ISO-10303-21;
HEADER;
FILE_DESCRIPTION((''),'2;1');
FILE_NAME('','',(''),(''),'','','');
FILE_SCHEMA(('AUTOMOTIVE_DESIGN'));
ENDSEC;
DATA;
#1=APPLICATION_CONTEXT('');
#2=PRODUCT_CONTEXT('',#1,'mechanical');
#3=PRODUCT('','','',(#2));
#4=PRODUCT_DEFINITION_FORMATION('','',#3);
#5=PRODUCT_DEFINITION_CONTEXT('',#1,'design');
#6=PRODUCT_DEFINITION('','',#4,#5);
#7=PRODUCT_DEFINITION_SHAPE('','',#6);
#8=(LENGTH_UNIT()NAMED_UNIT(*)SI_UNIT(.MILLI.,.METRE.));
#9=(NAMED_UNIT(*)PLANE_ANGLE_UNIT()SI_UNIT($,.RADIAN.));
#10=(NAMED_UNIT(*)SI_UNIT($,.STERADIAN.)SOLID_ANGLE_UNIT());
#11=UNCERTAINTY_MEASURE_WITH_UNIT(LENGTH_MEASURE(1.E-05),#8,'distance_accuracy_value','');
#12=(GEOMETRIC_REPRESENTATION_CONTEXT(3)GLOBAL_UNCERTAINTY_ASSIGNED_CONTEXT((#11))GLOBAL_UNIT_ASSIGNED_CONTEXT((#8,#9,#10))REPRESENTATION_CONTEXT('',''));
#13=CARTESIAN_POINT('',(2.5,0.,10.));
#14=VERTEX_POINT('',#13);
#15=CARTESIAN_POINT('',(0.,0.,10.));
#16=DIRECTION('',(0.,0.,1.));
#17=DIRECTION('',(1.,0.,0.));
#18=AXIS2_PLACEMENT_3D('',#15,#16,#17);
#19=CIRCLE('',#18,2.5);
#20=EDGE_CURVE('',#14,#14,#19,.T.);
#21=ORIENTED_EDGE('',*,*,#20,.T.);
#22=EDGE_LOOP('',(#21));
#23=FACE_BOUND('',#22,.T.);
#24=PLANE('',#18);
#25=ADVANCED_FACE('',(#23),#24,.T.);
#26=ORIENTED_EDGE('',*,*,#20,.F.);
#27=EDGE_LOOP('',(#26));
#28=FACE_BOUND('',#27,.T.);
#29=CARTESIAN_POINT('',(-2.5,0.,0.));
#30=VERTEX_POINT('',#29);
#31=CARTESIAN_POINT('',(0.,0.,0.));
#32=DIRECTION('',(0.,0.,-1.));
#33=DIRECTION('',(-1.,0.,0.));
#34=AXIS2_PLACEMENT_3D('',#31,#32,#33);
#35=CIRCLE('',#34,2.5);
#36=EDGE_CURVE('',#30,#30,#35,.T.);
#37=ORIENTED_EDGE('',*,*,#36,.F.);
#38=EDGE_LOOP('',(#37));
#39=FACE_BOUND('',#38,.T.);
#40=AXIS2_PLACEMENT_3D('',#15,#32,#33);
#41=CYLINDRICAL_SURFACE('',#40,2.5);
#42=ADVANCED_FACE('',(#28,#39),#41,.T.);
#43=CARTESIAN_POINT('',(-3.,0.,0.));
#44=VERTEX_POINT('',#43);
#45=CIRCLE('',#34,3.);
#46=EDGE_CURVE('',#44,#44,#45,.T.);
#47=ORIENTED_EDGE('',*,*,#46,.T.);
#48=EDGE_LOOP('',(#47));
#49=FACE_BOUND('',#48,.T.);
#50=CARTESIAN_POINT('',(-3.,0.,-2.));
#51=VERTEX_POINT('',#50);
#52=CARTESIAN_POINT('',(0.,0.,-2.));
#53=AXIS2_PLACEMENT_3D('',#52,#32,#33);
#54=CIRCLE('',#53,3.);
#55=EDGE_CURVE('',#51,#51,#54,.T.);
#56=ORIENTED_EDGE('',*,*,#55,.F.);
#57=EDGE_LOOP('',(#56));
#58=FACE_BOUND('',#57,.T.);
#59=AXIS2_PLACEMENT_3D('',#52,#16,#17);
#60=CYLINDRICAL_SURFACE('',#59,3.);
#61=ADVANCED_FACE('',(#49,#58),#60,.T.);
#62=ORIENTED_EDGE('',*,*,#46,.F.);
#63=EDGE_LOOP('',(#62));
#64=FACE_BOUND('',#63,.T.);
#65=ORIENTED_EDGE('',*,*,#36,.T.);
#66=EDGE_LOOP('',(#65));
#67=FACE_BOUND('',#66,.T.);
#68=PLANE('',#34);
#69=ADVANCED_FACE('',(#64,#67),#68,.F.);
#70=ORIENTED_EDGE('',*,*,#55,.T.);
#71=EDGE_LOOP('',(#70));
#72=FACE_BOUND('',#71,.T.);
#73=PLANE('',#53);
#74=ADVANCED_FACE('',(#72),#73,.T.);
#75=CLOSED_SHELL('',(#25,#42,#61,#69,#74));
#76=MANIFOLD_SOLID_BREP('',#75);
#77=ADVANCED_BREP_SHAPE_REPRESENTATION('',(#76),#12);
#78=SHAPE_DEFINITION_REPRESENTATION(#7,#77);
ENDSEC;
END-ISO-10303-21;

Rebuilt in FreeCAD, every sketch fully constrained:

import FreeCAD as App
import Part
import Sketcher
Q = App.Units.Quantity

doc = App.newDocument("Part")
params = doc.addObject("Spreadsheet::Sheet", "Params")
for row, (alias, value) in enumerate([
    ("sketch1_diameter", "5 mm"),
    ("pad1_length", "10 mm"),
    ("sketch2_diameter", "6 mm"),
    ("pad2_length", "2 mm"),
], start=1):
    params.set(f"A{row}", alias)
    params.set(f"B{row}", "=" + value)
    params.setAlias(f"B{row}", alias)

body = doc.addObject("PartDesign::Body", "Body")

# Sketch on XY plane
sketch1 = body.newObject("Sketcher::SketchObject", "Sketch")
sketch1.AttachmentSupport = (doc.getObject("XY_Plane"), [""])
sketch1.MapMode = "FlatFace"
sketch1.addGeometry(Part.Circle(App.Vector(0, 0, 0), App.Vector(0, 0, 1), 2.5), False)
sketch1.addConstraint([
    Sketcher.Constraint("Coincident", 0, 3, -1, 1),
    Sketcher.Constraint("Diameter", 0, Q("5 mm")),
])
sketch1.setExpression("Constraints[1]", "Params.sketch1_diameter")
pad1 = body.newObject("PartDesign::Pad", "Pad")
pad1.Profile = sketch1
pad1.setExpression("Length", "Params.pad1_length")

# Sketch on XY plane
sketch2 = body.newObject("Sketcher::SketchObject", "Sketch001")
sketch2.AttachmentSupport = (doc.getObject("XY_Plane"), [""])
sketch2.MapMode = "FlatFace"
sketch2.addGeometry(Part.Circle(App.Vector(0, 0, 0), App.Vector(0, 0, 1), 3), False)
sketch2.addConstraint([
    Sketcher.Constraint("Coincident", 0, 3, -1, 1),
    Sketcher.Constraint("Diameter", 0, Q("6 mm")),
])
sketch2.setExpression("Constraints[1]", "Params.sketch2_diameter")
pad2 = body.newObject("PartDesign::Pad", "Pad001")
pad2.Profile = sketch2
pad2.setExpression("Length", "Params.pad2_length")
pad2.Reversed = True

doc.recompute()
